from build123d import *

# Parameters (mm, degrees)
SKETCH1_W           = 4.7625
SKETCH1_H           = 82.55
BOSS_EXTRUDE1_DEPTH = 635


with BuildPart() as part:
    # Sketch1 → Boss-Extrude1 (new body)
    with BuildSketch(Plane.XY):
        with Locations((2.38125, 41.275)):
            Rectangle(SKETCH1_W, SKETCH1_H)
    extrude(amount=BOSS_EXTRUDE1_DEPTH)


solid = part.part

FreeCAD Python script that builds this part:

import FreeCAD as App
import Part
import Sketcher

V = App.Vector
Q = App.Units.Quantity


def add_polygon(sketch, points):
    """Adds a closed chain of lines whose ends are joined by coincident constraints."""
    first, n = sketch.GeometryCount, len(points)
    for a, b in zip(points, points[1:] + points[:1]):
        sketch.addGeometry(Part.LineSegment(App.Vector(*a, 0), App.Vector(*b, 0)), False)
    for i in range(n):
        sketch.addConstraint(Sketcher.Constraint("Coincident", first + i, 2, first + (i + 1) % n, 1))

doc = App.newDocument("Part")
params = doc.addObject("Spreadsheet::Sheet", "Params")
for row, (alias, value) in enumerate([
    ("sketch1_height", "3.25 in"),
    ("sketch1_width", "0.1875 in"),
    ("pad1_length", "25 in"),
], start=1):
    params.set(f"A{row}", alias)
    params.set(f"B{row}", "=" + value)
    params.setAlias(f"B{row}", alias)

body = doc.addObject("PartDesign::Body", "Body")

# Sketch on XY plane
sketch1 = body.newObject("Sketcher::SketchObject", "Sketch")
sketch1.AttachmentSupport = (doc.getObject("XY_Plane"), [""])
sketch1.MapMode = "FlatFace"
add_polygon(sketch1, [(0, 82.5), (0, 0), (4.8, 0), (4.8, 82.5)])  # lines 0-3
sketch1.addConstraint(Sketcher.Constraint("Vertical", 0))
sketch1.addConstraint(Sketcher.Constraint("Horizontal", 1))
sketch1.addConstraint(Sketcher.Constraint("Vertical", 2))
sketch1.addConstraint(Sketcher.Constraint("Horizontal", 3))
sketch1.addConstraint(Sketcher.Constraint("Coincident", 0, 2, -1, 1))
sketch1.addConstraint(Sketcher.Constraint("DistanceY", 0, 2, 0, 1, Q("3.25 in")))
sketch1.addConstraint(Sketcher.Constraint("DistanceX", 1, 1, 1, 2, Q("0.1875 in")))
sketch1.setExpression("Constraints[9]", "Params.sketch1_height")
sketch1.setExpression("Constraints[10]", "Params.sketch1_width")
pad1 = body.newObject("PartDesign::Pad", "Pad")
pad1.Profile = sketch1
pad1.setExpression("Length", "Params.pad1_length")

doc.recompute()
